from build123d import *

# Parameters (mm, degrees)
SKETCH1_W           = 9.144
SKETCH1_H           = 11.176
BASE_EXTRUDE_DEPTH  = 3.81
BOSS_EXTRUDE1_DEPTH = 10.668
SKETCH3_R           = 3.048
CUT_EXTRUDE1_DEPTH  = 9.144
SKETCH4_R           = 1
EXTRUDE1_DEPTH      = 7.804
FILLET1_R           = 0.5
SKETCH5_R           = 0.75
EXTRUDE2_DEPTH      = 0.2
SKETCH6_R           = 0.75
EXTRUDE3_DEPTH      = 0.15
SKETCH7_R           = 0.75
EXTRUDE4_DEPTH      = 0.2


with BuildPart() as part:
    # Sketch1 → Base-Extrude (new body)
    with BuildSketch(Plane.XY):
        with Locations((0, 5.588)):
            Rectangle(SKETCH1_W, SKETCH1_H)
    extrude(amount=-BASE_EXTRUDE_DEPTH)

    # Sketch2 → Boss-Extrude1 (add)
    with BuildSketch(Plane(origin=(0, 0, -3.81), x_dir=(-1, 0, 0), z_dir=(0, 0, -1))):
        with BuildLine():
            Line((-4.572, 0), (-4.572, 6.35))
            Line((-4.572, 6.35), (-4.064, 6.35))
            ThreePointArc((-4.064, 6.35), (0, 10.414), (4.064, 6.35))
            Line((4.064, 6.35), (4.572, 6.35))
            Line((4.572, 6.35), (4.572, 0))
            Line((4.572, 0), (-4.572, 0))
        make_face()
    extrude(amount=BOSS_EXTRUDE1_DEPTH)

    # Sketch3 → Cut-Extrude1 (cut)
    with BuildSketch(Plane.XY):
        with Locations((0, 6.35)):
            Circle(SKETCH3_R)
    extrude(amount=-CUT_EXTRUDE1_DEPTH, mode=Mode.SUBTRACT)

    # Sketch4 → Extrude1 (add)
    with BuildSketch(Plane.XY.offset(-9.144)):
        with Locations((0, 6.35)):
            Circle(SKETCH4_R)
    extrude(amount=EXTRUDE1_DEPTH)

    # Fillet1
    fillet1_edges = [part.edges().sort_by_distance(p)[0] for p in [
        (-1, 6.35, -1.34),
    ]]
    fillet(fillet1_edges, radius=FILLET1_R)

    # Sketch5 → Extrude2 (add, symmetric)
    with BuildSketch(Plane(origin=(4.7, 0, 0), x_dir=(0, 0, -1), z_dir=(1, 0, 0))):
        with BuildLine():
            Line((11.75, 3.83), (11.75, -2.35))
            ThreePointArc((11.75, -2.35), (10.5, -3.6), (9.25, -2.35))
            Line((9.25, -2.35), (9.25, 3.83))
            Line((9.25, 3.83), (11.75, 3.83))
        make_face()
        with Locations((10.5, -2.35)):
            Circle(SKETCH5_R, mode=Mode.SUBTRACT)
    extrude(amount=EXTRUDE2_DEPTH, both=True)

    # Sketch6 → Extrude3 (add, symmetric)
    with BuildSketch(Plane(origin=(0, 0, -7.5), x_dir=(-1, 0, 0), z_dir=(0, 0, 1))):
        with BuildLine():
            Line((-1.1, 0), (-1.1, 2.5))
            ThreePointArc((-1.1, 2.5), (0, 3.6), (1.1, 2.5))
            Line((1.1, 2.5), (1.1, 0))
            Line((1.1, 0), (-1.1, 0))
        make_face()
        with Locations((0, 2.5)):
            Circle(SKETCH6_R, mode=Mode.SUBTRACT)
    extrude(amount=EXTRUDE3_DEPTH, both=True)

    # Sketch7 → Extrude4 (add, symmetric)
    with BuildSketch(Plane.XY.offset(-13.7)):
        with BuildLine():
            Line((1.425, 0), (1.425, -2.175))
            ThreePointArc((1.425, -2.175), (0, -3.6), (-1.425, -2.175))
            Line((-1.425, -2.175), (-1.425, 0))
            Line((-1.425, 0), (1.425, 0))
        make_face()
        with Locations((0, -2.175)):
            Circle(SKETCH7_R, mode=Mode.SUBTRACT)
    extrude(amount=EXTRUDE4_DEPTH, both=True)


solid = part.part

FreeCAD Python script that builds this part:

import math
import FreeCAD as App
import Part
import Sketcher
Q = App.Units.Quantity


def edges_at(feature, points):
    """Names of the edges that pass closest to the given points."""
    edges = feature.Shape.Edges
    near = lambda p: min(range(len(edges)), key=lambda i: edges[i].distToShape(Part.Vertex(*p))[0])
    return sorted({f"Edge{near(p) + 1}" for p in points})


def add_polygon(sketch, points):
    """Adds a closed chain of lines whose ends are joined by coincident constraints."""
    first, n = sketch.GeometryCount, len(points)
    for a, b in zip(points, points[1:] + points[:1]):
        sketch.addGeometry(Part.LineSegment(App.Vector(*a, 0), App.Vector(*b, 0)), False)
    for i in range(n):
        sketch.addConstraint(Sketcher.Constraint("Coincident", first + i, 2, first + (i + 1) % n, 1))

doc = App.newDocument("Part")
body = doc.addObject("PartDesign::Body", "Body")

sketch1 = body.newObject("Sketcher::SketchObject", "Sketch")
sketch1.AttachmentSupport = (doc.getObject("XY_Plane"), [""])
sketch1.MapMode = "FlatFace"
add_polygon(sketch1, [(-5, 11), (-5, 0), (5, 0), (5, 11)])
sketch1.addConstraint([
    Sketcher.Constraint("Vertical", 0),
    Sketcher.Constraint("Horizontal", 1),
    Sketcher.Constraint("Vertical", 2),
    Sketcher.Constraint("Horizontal", 3),
    Sketcher.Constraint("Symmetric", 0, 2, 1, 2, -1, 1),
    Sketcher.Constraint("DistanceX", 1, 1, 1, 2, Q("0.36 in")),
    Sketcher.Constraint("DistanceY", 0, 2, 0, 1, Q("0.44 in")),
])
pad1 = body.newObject("PartDesign::Pad", "Pad")
pad1.Profile = sketch1
pad1.Length = Q("0.15 in")
pad1.Reversed = True

sketch2 = body.newObject("Sketcher::SketchObject", "Sketch001")
sketch2.AttachmentSupport = (doc.getObject("XY_Plane"), [""])
sketch2.MapMode = "FlatFace"
sketch2.AttachmentOffset = App.Placement(App.Vector(0, 0, -0.15 * 25.4), App.Rotation())
sketch2.addGeometry([
    Part.LineSegment(App.Vector(4.6, 6.3, 0), App.Vector(4.6, 0, 0)),
    Part.LineSegment(App.Vector(4.6, 0, 0), App.Vector(-4.6, 0, 0)),
    Part.LineSegment(App.Vector(-4.6, 0, 0), App.Vector(-4.6, 6.3, 0)),
    Part.LineSegment(App.Vector(-4.6, 6.3, 0), App.Vector(-4.1, 6.3, 0)),
    Part.ArcOfCircle(Part.Circle(App.Vector(0, 6.3, 0), App.Vector(0, 0, 1), 4.1), math.radians(0), math.radians(180)),
    Part.LineSegment(App.Vector(4.1, 6.3, 0), App.Vector(4.6, 6.3, 0)),
], False)
sketch2.addConstraint([
    Sketcher.Constraint("Coincident", 0, 2, 1, 1),
    Sketcher.Constraint("Coincident", 1, 2, 2, 1),
    Sketcher.Constraint("Coincident", 2, 2, 3, 1),
    Sketcher.Constraint("Coincident", 3, 2, 4, 2),
    Sketcher.Constraint("Coincident", 4, 1, 5, 1),
    Sketcher.Constraint("Coincident", 5, 2, 0, 1),
    Sketcher.Constraint("Vertical", 0),
    Sketcher.Constraint("Horizontal", 1),
    Sketcher.Constraint("Vertical", 2),
    Sketcher.Constraint("Horizontal", 3),
    Sketcher.Constraint("Horizontal", 5),
    Sketcher.Constraint("Symmetric", 0, 2, 1, 2, -1, 1),
    Sketcher.Constraint("Symmetric", 3, 2, 4, 1, -2),
    Sketcher.Constraint("Horizontal", 4, 3, 2, 2),
    Sketcher.Constraint("Radius", 4, Q("0.16 in")),
    Sketcher.Constraint("DistanceX", 1, 2, 1, 1, Q("0.36 in")),
    Sketcher.Constraint("DistanceY", 0, 2, 0, 1, Q("0.25 in")),
])
pad2 = body.newObject("PartDesign::Pad", "Pad001")
pad2.Profile = sketch2
pad2.Length = Q("0.42 in")
pad2.Reversed = True

sketch3 = body.newObject("Sketcher::SketchObject", "Sketch002")
sketch3.AttachmentSupport = (doc.getObject("XY_Plane"), [""])
sketch3.MapMode = "FlatFace"
sketch3.addGeometry(Part.Circle(App.Vector(0, 6.3, 0), App.Vector(0, 0, 1), 3), False)
sketch3.addConstraint([
    Sketcher.Constraint("PointOnObject", 0, 3, -2),
    Sketcher.Constraint("Diameter", 0, Q("0.24 in")),
    Sketcher.Constraint("DistanceY", -1, 1, 0, 3, Q("0.25 in")),
])
pocket1 = body.newObject("PartDesign::Pocket", "Pocket")
pocket1.Profile = sketch3
pocket1.Length = Q("0.36 in")

sketch4 = body.newObject("Sketcher::SketchObject", "Sketch003")
sketch4.AttachmentSupport = (doc.getObject("XY_Plane"), [""])
sketch4.MapMode = "FlatFace"
sketch4.AttachmentOffset = App.Placement(App.Vector(0, 0, -0.36 * 25.4), App.Rotation())
sketch4.addGeometry(Part.Circle(App.Vector(0, 6.3, 0), App.Vector(0, 0, 1), 1), False)
sketch4.addConstraint([
    Sketcher.Constraint("PointOnObject", 0, 3, -2),
    Sketcher.Constraint("Diameter", 0, 2.0),
    Sketcher.Constraint("DistanceY", -1, 1, 0, 3, Q("0.25 in")),
])
pad3 = body.newObject("PartDesign::Pad", "Pad002")
pad3.Profile = sketch4
pad3.Length = 7.804
doc.recompute()

fillet = body.newObject("PartDesign::Fillet", "Fillet")
fillet.Base = (pad3, edges_at(pad3, [(-1, 6.35, -1.34)]))
fillet.Radius = 0.5

sketch5 = body.newObject("Sketcher::SketchObject", "Sketch004")
sketch5.AttachmentSupport = (doc.getObject("YZ_Plane"), [""])
sketch5.MapMode = "FlatFace"
sketch5.AttachmentOffset = App.Placement(App.Vector(0, 0, 4.7), App.Rotation())
sketch5.addGeometry([
    Part.LineSegment(App.Vector(-2.4, -11.8, 0), App.Vector(3.8, -11.8, 0)),
    Part.LineSegment(App.Vector(3.8, -11.8, 0), App.Vector(3.8, -9.2, 0)),
    Part.LineSegment(App.Vector(3.8, -9.2, 0), App.Vector(-2.4, -9.2, 0)),
    Part.ArcOfCircle(Part.Circle(App.Vector(-2.4, -10.5, 0), App.Vector(0, 0, 1), 1.2), math.radians(90), math.radians(270)),
    Part.Circle(App.Vector(-2.4, -10.5, 0), App.Vector(0, 0, 1), 0.8),
], False)
sketch5.addConstraint([
    Sketcher.Constraint("Coincident", 0, 2, 1, 1),
    Sketcher.Constraint("Coincident", 1, 2, 2, 1),
    Sketcher.Constraint("Tangent", 2, 2, 3, 1),
    Sketcher.Constraint("Tangent", 3, 2, 0, 1),
    Sketcher.Constraint("Horizontal", 0),
    Sketcher.Constraint("Vertical", 1),
    Sketcher.Constraint("Horizontal", 2),
    Sketcher.Constraint("Coincident", 4, 3, 3, 3),
    Sketcher.Constraint("Diameter", 4, 1.5),
    Sketcher.Constraint("Radius", 3, 1.25),
    Sketcher.Constraint("DistanceX", 0, 1, 0, 2, 6.18),
    Sketcher.Constraint("DistanceX", 3, 3, -1, 1, 2.35),
    Sketcher.Constraint("DistanceY", 3, 3, -1, 1, 10.5),
])
pad4 = body.newObject("PartDesign::Pad", "Pad003")
pad4.Profile = sketch5
pad4.Length = 0.4
pad4.Midplane = True

sketch6 = body.newObject("Sketcher::SketchObject", "Sketch005")
sketch6.AttachmentSupport = (doc.getObject("XY_Plane"), [""])
sketch6.MapMode = "FlatFace"
sketch6.AttachmentOffset = App.Placement(App.Vector(0, 0, -7.5), App.Rotation())
sketch6.addGeometry([
    Part.LineSegment(App.Vector(1.1, -2.5, 0), App.Vector(1.1, 0, 0)),
    Part.LineSegment(App.Vector(1.1, 0, 0), App.Vector(-1.1, 0, 0)),
    Part.LineSegment(App.Vector(-1.1, 0, 0), App.Vector(-1.1, -2.5, 0)),
    Part.ArcOfCircle(Part.Circle(App.Vector(0, -2.5, 0), App.Vector(0, 0, 1), 1.1), math.radians(180), math.radians(360)),
    Part.Circle(App.Vector(0, -2.5, 0), App.Vector(0, 0, 1), 0.8),
], False)
sketch6.addConstraint([
    Sketcher.Constraint("Coincident", 0, 2, 1, 1),
    Sketcher.Constraint("Coincident", 1, 2, 2, 1),
    Sketcher.Constraint("Tangent", 2, 2, 3, 1),
    Sketcher.Constraint("Tangent", 3, 2, 0, 1),
    Sketcher.Constraint("Vertical", 0),
    Sketcher.Constraint("Horizontal", 1),
    Sketcher.Constraint("Vertical", 2),
    Sketcher.Constraint("Coincident", 4, 3, 3, 3),
    Sketcher.Constraint("Symmetric", 0, 2, 1, 2, -1, 1),
    Sketcher.Constraint("Diameter", 4, 1.5),
    Sketcher.Constraint("Radius", 3, 1.1),
    Sketcher.Constraint("DistanceY", 0, 1, 0, 2, 2.5),
])
pad5 = body.newObject("PartDesign::Pad", "Pad004")
pad5.Profile = sketch6
pad5.Length = 0.3
pad5.Midplane = True

sketch7 = body.newObject("Sketcher::SketchObject", "Sketch006")
sketch7.AttachmentSupport = (doc.getObject("XY_Plane"), [""])
sketch7.MapMode = "FlatFace"
sketch7.AttachmentOffset = App.Placement(App.Vector(0, 0, -13.7), App.Rotation())
sketch7.addGeometry([
    Part.LineSegment(App.Vector(1.4, -2.2, 0), App.Vector(1.4, 0, 0)),
    Part.LineSegment(App.Vector(1.4, 0, 0), App.Vector(-1.4, 0, 0)),
    Part.LineSegment(App.Vector(-1.4, 0, 0), App.Vector(-1.4, -2.2, 0)),
    Part.ArcOfCircle(Part.Circle(App.Vector(0, -2.2, 0), App.Vector(0, 0, 1), 1.4), math.radians(180), math.radians(360)),
    Part.Circle(App.Vector(0, -2.2, 0), App.Vector(0, 0, 1), 0.8),
], False)
sketch7.addConstraint([
    Sketcher.Constraint("Coincident", 0, 2, 1, 1),
    Sketcher.Constraint("Coincident", 1, 2, 2, 1),
    Sketcher.Constraint("Tangent", 2, 2, 3, 1),
    Sketcher.Constraint("Tangent", 3, 2, 0, 1),
    Sketcher.Constraint("Vertical", 0),
    Sketcher.Constraint("Horizontal", 1),
    Sketcher.Constraint("Vertical", 2),
    Sketcher.Constraint("Coincident", 4, 3, 3, 3),
    Sketcher.Constraint("Symmetric", 0, 2, 1, 2, -1, 1),
    Sketcher.Constraint("Diameter", 4, 1.5),
    Sketcher.Constraint("Radius", 3, 1.425),
    Sketcher.Constraint("DistanceY", 0, 1, 0, 2, 2.175),
])
pad6 = body.newObject("PartDesign::Pad", "Pad005")
pad6.Profile = sketch7
pad6.Length = 0.4
pad6.Midplane = True

doc.recompute()
